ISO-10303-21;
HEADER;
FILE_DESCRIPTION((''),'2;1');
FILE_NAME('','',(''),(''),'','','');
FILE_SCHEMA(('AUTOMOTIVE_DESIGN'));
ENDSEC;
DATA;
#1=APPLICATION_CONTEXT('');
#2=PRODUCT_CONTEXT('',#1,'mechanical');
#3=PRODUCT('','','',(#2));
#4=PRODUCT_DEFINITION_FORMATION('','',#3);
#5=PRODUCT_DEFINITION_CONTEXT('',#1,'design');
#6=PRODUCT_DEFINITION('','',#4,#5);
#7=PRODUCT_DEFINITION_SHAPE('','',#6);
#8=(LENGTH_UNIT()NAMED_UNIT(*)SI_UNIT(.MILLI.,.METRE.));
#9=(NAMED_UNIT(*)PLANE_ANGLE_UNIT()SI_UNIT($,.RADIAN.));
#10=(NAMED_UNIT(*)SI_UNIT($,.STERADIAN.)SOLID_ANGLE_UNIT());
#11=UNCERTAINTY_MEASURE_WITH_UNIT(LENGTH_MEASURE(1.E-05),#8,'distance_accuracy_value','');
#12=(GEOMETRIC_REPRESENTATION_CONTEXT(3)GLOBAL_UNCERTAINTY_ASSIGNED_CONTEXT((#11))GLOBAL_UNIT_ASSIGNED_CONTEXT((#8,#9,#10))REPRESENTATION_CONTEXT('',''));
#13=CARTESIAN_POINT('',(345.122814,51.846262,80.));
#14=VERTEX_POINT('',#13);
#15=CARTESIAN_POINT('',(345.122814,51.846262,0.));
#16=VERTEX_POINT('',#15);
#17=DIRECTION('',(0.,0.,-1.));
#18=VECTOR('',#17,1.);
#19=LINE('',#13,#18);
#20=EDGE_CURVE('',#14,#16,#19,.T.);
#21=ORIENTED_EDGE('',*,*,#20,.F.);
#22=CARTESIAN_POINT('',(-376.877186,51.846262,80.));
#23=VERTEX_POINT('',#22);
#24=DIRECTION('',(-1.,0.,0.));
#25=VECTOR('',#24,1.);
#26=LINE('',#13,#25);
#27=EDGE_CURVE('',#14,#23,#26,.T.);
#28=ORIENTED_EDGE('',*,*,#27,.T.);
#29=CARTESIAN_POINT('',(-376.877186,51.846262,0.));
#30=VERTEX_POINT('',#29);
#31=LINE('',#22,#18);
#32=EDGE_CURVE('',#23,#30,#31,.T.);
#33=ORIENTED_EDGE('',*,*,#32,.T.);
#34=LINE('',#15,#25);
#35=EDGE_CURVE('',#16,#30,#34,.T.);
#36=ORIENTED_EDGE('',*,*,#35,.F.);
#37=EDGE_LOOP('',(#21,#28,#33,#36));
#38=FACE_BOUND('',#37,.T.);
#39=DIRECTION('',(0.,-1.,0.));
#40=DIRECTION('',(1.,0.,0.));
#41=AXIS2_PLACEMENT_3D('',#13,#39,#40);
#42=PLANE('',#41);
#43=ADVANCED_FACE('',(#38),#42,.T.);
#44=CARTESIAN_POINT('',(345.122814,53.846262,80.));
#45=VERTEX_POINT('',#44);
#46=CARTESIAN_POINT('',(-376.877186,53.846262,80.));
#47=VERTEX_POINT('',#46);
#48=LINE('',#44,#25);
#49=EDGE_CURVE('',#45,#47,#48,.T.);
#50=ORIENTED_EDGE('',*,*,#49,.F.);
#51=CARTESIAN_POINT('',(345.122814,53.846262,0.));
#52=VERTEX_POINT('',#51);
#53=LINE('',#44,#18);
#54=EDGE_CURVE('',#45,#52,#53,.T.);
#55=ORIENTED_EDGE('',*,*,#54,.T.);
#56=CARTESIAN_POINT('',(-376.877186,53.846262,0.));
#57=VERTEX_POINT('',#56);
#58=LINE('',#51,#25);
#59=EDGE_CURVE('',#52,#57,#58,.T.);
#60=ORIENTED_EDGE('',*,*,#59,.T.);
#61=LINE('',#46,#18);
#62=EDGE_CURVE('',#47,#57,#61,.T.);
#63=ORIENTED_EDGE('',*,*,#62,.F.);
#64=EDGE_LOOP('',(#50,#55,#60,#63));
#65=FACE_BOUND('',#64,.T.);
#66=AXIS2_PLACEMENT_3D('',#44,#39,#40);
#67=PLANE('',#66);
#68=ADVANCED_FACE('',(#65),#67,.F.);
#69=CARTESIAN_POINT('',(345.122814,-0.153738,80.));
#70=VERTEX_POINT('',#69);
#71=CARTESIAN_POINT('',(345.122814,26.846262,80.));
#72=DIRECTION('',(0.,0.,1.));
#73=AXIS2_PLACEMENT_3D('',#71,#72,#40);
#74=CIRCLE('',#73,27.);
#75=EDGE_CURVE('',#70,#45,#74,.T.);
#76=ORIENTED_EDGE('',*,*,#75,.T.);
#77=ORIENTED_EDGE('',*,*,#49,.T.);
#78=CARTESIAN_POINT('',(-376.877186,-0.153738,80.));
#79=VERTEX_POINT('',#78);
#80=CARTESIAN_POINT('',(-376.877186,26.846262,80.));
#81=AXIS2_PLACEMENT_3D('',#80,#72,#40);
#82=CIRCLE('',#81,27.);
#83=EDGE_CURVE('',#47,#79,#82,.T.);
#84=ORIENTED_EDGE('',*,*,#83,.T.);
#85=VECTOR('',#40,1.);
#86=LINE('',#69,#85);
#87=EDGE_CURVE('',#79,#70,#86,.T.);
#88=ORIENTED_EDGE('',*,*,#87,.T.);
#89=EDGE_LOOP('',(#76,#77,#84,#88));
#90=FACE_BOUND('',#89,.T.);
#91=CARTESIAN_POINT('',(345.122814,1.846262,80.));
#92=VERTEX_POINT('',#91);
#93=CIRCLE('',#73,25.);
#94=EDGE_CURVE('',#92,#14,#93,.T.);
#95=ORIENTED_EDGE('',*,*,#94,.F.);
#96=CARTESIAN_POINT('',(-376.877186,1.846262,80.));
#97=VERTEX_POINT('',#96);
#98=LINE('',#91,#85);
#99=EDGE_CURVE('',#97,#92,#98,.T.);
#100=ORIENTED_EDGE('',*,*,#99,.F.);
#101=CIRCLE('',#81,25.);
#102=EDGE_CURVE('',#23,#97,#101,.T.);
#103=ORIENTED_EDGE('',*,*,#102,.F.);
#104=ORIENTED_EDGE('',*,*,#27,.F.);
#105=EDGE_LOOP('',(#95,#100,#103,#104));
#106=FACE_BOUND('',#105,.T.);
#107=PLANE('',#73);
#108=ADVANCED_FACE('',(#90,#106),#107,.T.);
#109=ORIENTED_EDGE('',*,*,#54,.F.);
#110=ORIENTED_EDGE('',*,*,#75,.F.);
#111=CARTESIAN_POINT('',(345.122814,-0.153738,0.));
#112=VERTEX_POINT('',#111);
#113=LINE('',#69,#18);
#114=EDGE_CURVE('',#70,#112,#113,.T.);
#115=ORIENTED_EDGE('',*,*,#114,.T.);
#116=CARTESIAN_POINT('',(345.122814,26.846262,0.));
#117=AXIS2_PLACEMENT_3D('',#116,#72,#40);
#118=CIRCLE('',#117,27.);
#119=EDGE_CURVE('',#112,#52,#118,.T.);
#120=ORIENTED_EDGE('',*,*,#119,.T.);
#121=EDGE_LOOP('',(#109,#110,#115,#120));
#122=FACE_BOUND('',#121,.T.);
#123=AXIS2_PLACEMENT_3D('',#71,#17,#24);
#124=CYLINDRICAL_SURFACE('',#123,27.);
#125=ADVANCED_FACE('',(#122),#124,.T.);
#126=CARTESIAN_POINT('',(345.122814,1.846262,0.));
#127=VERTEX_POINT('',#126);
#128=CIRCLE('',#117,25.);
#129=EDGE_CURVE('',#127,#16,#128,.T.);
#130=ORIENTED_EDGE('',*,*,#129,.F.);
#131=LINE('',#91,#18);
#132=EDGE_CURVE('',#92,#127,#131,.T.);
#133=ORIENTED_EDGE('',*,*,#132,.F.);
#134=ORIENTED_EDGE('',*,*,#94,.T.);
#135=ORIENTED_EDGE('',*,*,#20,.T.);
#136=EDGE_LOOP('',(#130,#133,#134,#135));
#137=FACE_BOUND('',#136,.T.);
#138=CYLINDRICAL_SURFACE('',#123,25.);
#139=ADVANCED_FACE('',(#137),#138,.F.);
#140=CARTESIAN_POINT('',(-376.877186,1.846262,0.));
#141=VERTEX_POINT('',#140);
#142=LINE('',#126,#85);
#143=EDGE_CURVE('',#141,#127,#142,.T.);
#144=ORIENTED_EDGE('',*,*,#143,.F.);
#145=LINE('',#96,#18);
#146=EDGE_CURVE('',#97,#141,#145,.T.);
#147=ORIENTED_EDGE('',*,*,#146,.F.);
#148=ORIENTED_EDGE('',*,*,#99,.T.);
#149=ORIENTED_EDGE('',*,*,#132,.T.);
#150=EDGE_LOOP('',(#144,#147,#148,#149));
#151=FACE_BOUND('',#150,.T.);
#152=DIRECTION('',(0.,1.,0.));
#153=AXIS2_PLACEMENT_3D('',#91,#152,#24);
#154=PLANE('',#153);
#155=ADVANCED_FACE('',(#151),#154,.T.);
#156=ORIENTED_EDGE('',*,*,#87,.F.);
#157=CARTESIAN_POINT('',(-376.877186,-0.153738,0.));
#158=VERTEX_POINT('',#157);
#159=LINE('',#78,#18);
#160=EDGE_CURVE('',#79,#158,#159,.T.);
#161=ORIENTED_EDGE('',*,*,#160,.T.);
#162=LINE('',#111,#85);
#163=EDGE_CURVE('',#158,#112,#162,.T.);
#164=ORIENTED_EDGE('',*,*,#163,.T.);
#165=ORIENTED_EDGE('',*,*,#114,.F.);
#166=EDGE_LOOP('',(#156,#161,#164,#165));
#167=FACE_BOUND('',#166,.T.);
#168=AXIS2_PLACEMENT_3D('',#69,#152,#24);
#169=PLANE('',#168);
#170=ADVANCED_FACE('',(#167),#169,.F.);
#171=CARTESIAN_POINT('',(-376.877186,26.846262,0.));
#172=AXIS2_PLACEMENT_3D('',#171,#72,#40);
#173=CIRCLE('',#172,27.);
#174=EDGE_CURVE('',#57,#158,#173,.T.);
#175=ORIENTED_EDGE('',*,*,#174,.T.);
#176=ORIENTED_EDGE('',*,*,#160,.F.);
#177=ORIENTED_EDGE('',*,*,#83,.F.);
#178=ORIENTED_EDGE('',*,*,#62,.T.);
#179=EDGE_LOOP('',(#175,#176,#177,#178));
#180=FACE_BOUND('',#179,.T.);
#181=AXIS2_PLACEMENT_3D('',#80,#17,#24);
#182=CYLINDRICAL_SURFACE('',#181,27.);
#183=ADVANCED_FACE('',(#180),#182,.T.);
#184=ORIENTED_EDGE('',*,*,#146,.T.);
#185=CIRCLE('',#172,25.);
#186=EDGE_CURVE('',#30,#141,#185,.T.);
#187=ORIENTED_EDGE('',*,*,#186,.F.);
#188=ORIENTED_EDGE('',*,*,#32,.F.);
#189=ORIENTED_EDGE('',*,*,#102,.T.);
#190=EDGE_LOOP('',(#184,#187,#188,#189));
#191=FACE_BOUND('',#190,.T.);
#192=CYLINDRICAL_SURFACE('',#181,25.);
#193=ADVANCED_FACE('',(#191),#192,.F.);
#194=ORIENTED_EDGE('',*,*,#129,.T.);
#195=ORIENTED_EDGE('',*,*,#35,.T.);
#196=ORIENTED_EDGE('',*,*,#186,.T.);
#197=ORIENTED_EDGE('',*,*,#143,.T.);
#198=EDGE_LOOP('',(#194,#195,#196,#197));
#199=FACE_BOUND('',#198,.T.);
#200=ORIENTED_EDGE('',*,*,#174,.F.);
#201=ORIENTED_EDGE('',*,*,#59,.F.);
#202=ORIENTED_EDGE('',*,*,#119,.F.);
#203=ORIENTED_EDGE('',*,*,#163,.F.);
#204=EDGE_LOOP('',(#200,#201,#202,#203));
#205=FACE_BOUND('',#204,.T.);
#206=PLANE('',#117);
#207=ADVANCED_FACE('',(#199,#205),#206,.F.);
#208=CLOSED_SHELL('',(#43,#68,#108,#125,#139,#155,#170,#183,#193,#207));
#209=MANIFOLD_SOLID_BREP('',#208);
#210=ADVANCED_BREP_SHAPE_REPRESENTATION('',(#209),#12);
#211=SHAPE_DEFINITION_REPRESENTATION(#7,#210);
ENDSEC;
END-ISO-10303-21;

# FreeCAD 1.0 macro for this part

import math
import FreeCAD as App
import Part
import Sketcher
from FreeCAD import Vector
Q = App.Units.Quantity

doc = App.newDocument("Part")
body = doc.addObject("PartDesign::Body", "Body")

# Sketch on XY plane
sketch1 = body.newObject("Sketcher::SketchObject", "Sketch")
sketch1.AttachmentSupport = (doc.getObject("XY_Plane"), [""])
sketch1.MapMode = "FlatFace"
sketch1.addGeometry([
    Part.LineSegment(Vector(-377, 0, 0), Vector(345, 0, 0)),  # 0
    Part.ArcOfCircle(Part.Circle(Vector(345, 27, 0), Vector(0, 0, 1), 27), math.radians(-90), math.radians(90)),  # 1
    Part.LineSegment(Vector(345, 54, 0), Vector(-377, 54, 0)),  # 2
    Part.ArcOfCircle(Part.Circle(Vector(-377, 27, 0), Vector(0, 0, 1), 27), math.radians(90), math.radians(270)),  # 3
    Part.LineSegment(Vector(345, 2, 0), Vector(-377, 2, 0)),  # 4
    Part.ArcOfCircle(Part.Circle(Vector(-377, 27, 0), Vector(0, 0, 1), 25), math.radians(90), math.radians(270)),  # 5
    Part.LineSegment(Vector(-377, 52, 0), Vector(345, 52, 0)),  # 6
    Part.ArcOfCircle(Part.Circle(Vector(345, 27, 0), Vector(0, 0, 1), 25), math.radians(-90), math.radians(90)),  # 7
], False)
sketch1.addConstraint([
    Sketcher.Constraint("Tangent", 0, 2, 1, 1),
    Sketcher.Constraint("Tangent", 1, 2, 2, 1),
    Sketcher.Constraint("Tangent", 2, 2, 3, 1),
    Sketcher.Constraint("Tangent", 3, 2, 0, 1),
    Sketcher.Constraint("Tangent", 4, 2, 5, 2),
    Sketcher.Constraint("Tangent", 5, 1, 6, 1),
    Sketcher.Constraint("Tangent", 6, 2, 7, 2),
    Sketcher.Constraint("Tangent", 7, 1, 4, 1),
    Sketcher.Constraint("Horizontal", 0),
    Sketcher.Constraint("Horizontal", 2),
    Sketcher.Constraint("Horizontal", 4),
    Sketcher.Constraint("Horizontal", 6),
    Sketcher.Constraint("Coincident", 5, 3, 3, 3),
    Sketcher.Constraint("Vertical", 7, 3, 0, 2),
    Sketcher.Constraint("Radius", 1, Q("27 mm")),
    Sketcher.Constraint("Radius", 5, Q("25 mm")),
    Sketcher.Constraint("DistanceX", 0, 1, 0, 2, Q("722 mm")),
    Sketcher.Constraint("DistanceX", -1, 1, 1, 3, Q("345.122814 mm")),
    Sketcher.Constraint("DistanceY", -1, 1, 1, 3, Q("26.846262 mm")),
])
pad1 = body.newObject("PartDesign::Pad", "Pad")
pad1.Profile = sketch1
pad1.Length = 80

doc.recompute()
